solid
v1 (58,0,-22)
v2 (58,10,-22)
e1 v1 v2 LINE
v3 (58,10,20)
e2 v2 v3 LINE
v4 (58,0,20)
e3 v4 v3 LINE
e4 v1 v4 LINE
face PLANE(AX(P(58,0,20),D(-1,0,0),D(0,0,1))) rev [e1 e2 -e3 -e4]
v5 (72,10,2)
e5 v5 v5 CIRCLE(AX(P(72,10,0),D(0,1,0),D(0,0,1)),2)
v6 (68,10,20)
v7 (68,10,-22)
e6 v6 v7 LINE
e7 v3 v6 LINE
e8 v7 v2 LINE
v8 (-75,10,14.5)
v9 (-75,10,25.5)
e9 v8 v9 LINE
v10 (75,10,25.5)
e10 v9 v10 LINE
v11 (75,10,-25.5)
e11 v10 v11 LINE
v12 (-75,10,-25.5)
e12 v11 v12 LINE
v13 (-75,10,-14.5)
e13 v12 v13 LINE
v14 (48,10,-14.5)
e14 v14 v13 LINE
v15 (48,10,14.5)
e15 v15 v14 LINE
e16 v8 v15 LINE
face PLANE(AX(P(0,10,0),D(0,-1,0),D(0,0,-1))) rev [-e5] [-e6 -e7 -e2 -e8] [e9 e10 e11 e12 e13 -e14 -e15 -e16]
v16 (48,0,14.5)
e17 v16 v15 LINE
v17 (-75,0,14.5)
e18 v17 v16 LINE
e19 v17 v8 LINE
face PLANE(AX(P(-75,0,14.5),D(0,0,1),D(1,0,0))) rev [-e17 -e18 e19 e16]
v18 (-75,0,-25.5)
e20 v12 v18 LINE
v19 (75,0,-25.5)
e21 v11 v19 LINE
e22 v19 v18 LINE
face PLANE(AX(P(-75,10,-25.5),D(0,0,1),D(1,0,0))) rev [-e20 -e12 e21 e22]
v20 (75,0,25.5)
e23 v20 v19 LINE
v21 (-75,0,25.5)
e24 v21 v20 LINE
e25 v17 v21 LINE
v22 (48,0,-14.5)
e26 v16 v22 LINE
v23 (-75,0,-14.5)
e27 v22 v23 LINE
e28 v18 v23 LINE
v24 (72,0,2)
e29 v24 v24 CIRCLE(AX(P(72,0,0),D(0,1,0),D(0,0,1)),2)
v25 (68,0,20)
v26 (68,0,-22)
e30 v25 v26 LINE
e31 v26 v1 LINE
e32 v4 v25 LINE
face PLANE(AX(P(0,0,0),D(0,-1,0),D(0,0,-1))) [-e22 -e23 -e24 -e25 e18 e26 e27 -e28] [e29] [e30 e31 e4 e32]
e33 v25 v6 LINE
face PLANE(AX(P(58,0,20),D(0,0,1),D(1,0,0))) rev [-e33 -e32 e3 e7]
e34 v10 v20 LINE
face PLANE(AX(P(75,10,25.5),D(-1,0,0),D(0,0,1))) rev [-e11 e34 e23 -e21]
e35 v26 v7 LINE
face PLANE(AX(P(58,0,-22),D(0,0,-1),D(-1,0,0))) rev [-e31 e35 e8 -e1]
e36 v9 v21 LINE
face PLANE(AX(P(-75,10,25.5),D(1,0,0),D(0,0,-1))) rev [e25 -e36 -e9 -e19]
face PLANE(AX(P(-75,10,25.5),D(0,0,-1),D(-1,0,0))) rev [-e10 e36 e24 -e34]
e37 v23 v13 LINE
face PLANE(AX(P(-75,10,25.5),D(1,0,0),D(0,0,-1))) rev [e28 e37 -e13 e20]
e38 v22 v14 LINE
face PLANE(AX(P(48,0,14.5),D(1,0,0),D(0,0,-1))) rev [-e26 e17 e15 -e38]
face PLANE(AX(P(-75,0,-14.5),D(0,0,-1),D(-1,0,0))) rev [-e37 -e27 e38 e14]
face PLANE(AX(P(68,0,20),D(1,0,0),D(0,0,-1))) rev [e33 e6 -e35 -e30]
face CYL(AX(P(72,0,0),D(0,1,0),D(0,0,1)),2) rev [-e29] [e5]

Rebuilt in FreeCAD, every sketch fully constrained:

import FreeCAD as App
import Part
import Sketcher

V = App.Vector
Q = App.Units.Quantity

doc = App.newDocument("Part")
body = doc.addObject("PartDesign::Body", "Body")

# Sketch on XZ plane
sketch1 = body.newObject("Sketcher::SketchObject", "Sketch")
sketch1.AttachmentSupport = (doc.getObject("XZ_Plane"), [""])
sketch1.MapMode = "FlatFace"
sketch1.addGeometry(Part.LineSegment(V(-75, -26, 0), V(-75, 26, 0)), False)
sketch1.addGeometry(Part.LineSegment(V(-75, 26, 0), V(75, 26, 0)), False)
sketch1.addGeometry(Part.LineSegment(V(75, 26, 0), V(75, -26, 0)), False)
sketch1.addGeometry(Part.LineSegment(V(75, -26, 0), V(-75, -26, 0)), False)
sketch1.addConstraint(Sketcher.Constraint("Coincident", 0, 2, 1, 1))
sketch1.addConstraint(Sketcher.Constraint("Coincident", 1, 2, 2, 1))
sketch1.addConstraint(Sketcher.Constraint("Coincident", 2, 2, 3, 1))
sketch1.addConstraint(Sketcher.Constraint("Coincident", 3, 2, 0, 1))
sketch1.addConstraint(Sketcher.Constraint("Vertical", 0))
sketch1.addConstraint(Sketcher.Constraint("Horizontal", 1))
sketch1.addConstraint(Sketcher.Constraint("Vertical", 2))
sketch1.addConstraint(Sketcher.Constraint("Horizontal", 3))
sketch1.addConstraint(Sketcher.Constraint("Symmetric", 0, 2, 2, 2, -1, 1))
sketch1.addConstraint(Sketcher.Constraint("DistanceX", 1, 1, 1, 2, Q("150 mm")))
sketch1.addConstraint(Sketcher.Constraint("DistanceY", 0, 1, 0, 2, Q("51 mm")))
pad1 = body.newObject("PartDesign::Pad", "Pad")
pad1.Profile = sketch1
pad1.Length = 10
pad1.Reversed = True

# Sketch on XZ plane
sketch2 = body.newObject("Sketcher::SketchObject", "Sketch001")
sketch2.AttachmentSupport = (doc.getObject("XZ_Plane"), [""])
sketch2.MapMode = "FlatFace"
sketch2.AttachmentOffset = App.Placement(V(0, 0, -10), App.Rotation())
sketch2.addGeometry(Part.LineSegment(V(58, -22, 0), V(58, 20, 0)), False)
sketch2.addGeometry(Part.LineSegment(V(58, 20, 0), V(68, 20, 0)), False)
sketch2.addGeometry(Part.LineSegment(V(68, 20, 0), V(68, -22, 0)), False)
sketch2.addGeometry(Part.LineSegment(V(68, -22, 0), V(58, -22, 0)), False)
sketch2.addConstraint(Sketcher.Constraint("Coincident", 0, 2, 1, 1))
sketch2.addConstraint(Sketcher.Constraint("Coincident", 1, 2, 2, 1))
sketch2.addConstraint(Sketcher.Constraint("Coincident", 2, 2, 3, 1))
sketch2.addConstraint(Sketcher.Constraint("Coincident", 3, 2, 0, 1))
sketch2.addConstraint(Sketcher.Constraint("Vertical", 0))
sketch2.addConstraint(Sketcher.Constraint("Horizontal", 1))
sketch2.addConstraint(Sketcher.Constraint("Vertical", 2))
sketch2.addConstraint(Sketcher.Constraint("Horizontal", 3))
sketch2.addConstraint(Sketcher.Constraint("DistanceX", 1, 1, 1, 2, Q("10 mm")))
sketch2.addConstraint(Sketcher.Constraint("DistanceY", 0, 1, 0, 2, Q("42 mm")))
sketch2.addConstraint(Sketcher.Constraint("DistanceX", -1, 1, 0, 2, Q("58 mm")))
sketch2.addConstraint(Sketcher.Constraint("DistanceY", -1, 1, 0, 2, Q("20 mm")))
pocket1 = body.newObject("PartDesign::Pocket", "Pocket")
pocket1.Profile = sketch2
pocket1.Type = "ThroughAll"
pocket1.Reversed = True

# Sketch on XZ plane
sketch3 = body.newObject("Sketcher::SketchObject", "Sketch002")
sketch3.AttachmentSupport = (doc.getObject("XZ_Plane"), [""])
sketch3.MapMode = "FlatFace"
sketch3.AttachmentOffset = App.Placement(V(0, 0, -10), App.Rotation())
sketch3.addGeometry(Part.LineSegment(V(-75, -14, 0), V(-75, 14, 0)), False)
sketch3.addGeometry(Part.LineSegment(V(-75, 14, 0), V(48, 14, 0)), False)
sketch3.addGeometry(Part.LineSegment(V(48, 14, 0), V(48, -14, 0)), False)
sketch3.addGeometry(Part.LineSegment(V(48, -14, 0), V(-75, -14, 0)), False)
sketch3.addConstraint(Sketcher.Constraint("Coincident", 0, 2, 1, 1))
sketch3.addConstraint(Sketcher.Constraint("Coincident", 1, 2, 2, 1))
sketch3.addConstraint(Sketcher.Constraint("Coincident", 2, 2, 3, 1))
sketch3.addConstraint(Sketcher.Constraint("Coincident", 3, 2, 0, 1))
sketch3.addConstraint(Sketcher.Constraint("Vertical", 0))
sketch3.addConstraint(Sketcher.Constraint("Horizontal", 1))
sketch3.addConstraint(Sketcher.Constraint("Vertical", 2))
sketch3.addConstraint(Sketcher.Constraint("Horizontal", 3))
sketch3.addConstraint(Sketcher.Constraint("DistanceX", 1, 1, 1, 2, Q("123 mm")))
sketch3.addConstraint(Sketcher.Constraint("DistanceY", 0, 1, 0, 2, Q("29 mm")))
sketch3.addConstraint(Sketcher.Constraint("DistanceX", 0, 2, -1, 1, Q("75 mm")))
sketch3.addConstraint(Sketcher.Constraint("DistanceY", -1, 1, 0, 2, Q("14.5 mm")))
pocket2 = body.newObject("PartDesign::Pocket", "Pocket001")
pocket2.Profile = sketch3
pocket2.Type = "ThroughAll"
pocket2.Reversed = True

# Sketch on XZ plane
sketch4 = body.newObject("Sketcher::SketchObject", "Sketch003")
sketch4.AttachmentSupport = (doc.getObject("XZ_Plane"), [""])
sketch4.MapMode = "FlatFace"
sketch4.AttachmentOffset = App.Placement(V(0, 0, -10), App.Rotation())
sketch4.addGeometry(Part.Circle(V(72, 0, 0), V(0, 0, 1), 2), False)
sketch4.addConstraint(Sketcher.Constraint("PointOnObject", 0, 3, -1))
sketch4.addConstraint(Sketcher.Constraint("Diameter", 0, Q("4 mm")))
sketch4.addConstraint(Sketcher.Constraint("DistanceX", -1, 1, 0, 3, Q("72 mm")))
pocket3 = body.newObject("PartDesign::Pocket", "Pocket002")
pocket3.Profile = sketch4
pocket3.Type = "ThroughAll"
pocket3.Reversed = True

doc.recompute()
